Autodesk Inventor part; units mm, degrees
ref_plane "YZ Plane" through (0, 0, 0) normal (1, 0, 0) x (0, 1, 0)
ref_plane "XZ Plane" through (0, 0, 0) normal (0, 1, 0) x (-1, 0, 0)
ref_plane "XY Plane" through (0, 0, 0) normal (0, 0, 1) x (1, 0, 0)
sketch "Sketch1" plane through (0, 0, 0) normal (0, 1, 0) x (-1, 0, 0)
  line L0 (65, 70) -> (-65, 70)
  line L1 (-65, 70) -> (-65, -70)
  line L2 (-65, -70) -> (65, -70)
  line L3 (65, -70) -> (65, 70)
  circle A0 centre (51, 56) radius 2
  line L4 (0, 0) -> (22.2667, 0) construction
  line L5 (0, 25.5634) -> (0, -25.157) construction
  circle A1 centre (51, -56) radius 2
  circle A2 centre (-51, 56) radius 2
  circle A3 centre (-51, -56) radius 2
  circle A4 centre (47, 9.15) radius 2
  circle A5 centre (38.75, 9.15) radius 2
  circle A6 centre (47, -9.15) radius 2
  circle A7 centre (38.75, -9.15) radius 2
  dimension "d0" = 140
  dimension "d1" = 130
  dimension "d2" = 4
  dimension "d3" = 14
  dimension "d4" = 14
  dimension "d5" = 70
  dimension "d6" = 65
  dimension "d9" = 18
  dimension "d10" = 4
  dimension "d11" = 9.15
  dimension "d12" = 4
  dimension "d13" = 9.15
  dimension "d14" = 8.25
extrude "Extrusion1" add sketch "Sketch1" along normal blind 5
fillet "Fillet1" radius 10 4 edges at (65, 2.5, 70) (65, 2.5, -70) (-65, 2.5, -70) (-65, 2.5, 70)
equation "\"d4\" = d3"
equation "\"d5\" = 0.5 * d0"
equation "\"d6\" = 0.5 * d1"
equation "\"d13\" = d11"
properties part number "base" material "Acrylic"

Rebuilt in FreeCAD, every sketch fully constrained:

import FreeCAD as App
import Part
import Sketcher
from FreeCAD import Vector
Q = App.Units.Quantity


def edges_at(feature, points):
    """Names of the edges that pass closest to the given points."""
    edges = feature.Shape.Edges
    near = lambda p: min(range(len(edges)), key=lambda i: edges[i].distToShape(Part.Vertex(*p))[0])
    return sorted({f"Edge{near(p) + 1}" for p in points})


def add_polygon(sketch, points):
    """Adds a closed chain of lines whose ends are joined by coincident constraints."""
    first, n = sketch.GeometryCount, len(points)
    for a, b in zip(points, points[1:] + points[:1]):
        sketch.addGeometry(Part.LineSegment(App.Vector(*a, 0), App.Vector(*b, 0)), False)
    for i in range(n):
        sketch.addConstraint(Sketcher.Constraint("Coincident", first + i, 2, first + (i + 1) % n, 1))

doc = App.newDocument("Part")
params = doc.addObject("Spreadsheet::Sheet", "Params")
for row, (alias, value) in enumerate([
    ("sketch1_diameter", "4 mm"),
    ("sketch1_width", "130 mm"),
    ("sketch1_height", "140 mm"),
    ("pad1_length", "5 mm"),
    ("fillet_radius", "10 mm"),
], start=1):
    params.set(f"A{row}", alias)
    params.set(f"B{row}", "=" + value)
    params.setAlias(f"B{row}", alias)

body = doc.addObject("PartDesign::Body", "Body")

sketch1 = body.newObject("Sketcher::SketchObject", "Sketch")
sketch1.AttachmentSupport = (doc.getObject("XZ_Plane"), [""])
sketch1.MapMode = "FlatFace"
add_polygon(sketch1, [(-65, -70), (-65, 70), (65, 70), (65, -70)])
sketch1.addGeometry(Part.Circle(Vector(51, -56, 0), Vector(0, 0, 1), 2), False)
sketch1.addGeometry(Part.Circle(Vector(-51, -56, 0), Vector(0, 0, 1), 2), False)
sketch1.addGeometry(Part.Circle(Vector(-38.8, -9.2, 0), Vector(0, 0, 1), 2), False)
sketch1.addGeometry(Part.Circle(Vector(-47, -9.2, 0), Vector(0, 0, 1), 2), False)
sketch1.addGeometry(Part.Circle(Vector(51, 56, 0), Vector(0, 0, 1), 2), False)
sketch1.addGeometry(Part.Circle(Vector(-38.8, 9.2, 0), Vector(0, 0, 1), 2), False)
sketch1.addGeometry(Part.Circle(Vector(-47, 9.2, 0), Vector(0, 0, 1), 2), False)
sketch1.addGeometry(Part.Circle(Vector(-51, 56, 0), Vector(0, 0, 1), 2), False)
sketch1.addConstraint([
    Sketcher.Constraint("Vertical", 0),
    Sketcher.Constraint("Horizontal", 1),
    Sketcher.Constraint("Vertical", 2),
    Sketcher.Constraint("Horizontal", 3),
    Sketcher.Constraint("Equal", 4, 5),
    Sketcher.Constraint("Equal", 5, 6),
    Sketcher.Constraint("Equal", 6, 7),
    Sketcher.Constraint("Equal", 7, 8),
    Sketcher.Constraint("Equal", 8, 9),
    Sketcher.Constraint("Equal", 9, 10),
    Sketcher.Constraint("Equal", 10, 11),
    Sketcher.Constraint("Symmetric", 5, 3, 8, 3, -1, 1),
    Sketcher.Constraint("Symmetric", 4, 3, 11, 3, -1, 1),
    Sketcher.Constraint("Symmetric", 0, 2, 2, 2, -1, 1),
    Sketcher.Constraint("Symmetric", 4, 3, 5, 3, -2),
    Sketcher.Constraint("Symmetric", 6, 3, 9, 3, -1),
    Sketcher.Constraint("Symmetric", 7, 3, 10, 3, -1),
    Sketcher.Constraint("Horizontal", 6, 3, 7, 3),
    Sketcher.Constraint("Diameter", 4, Q("4 mm")),
    Sketcher.Constraint("DistanceX", 1, 1, 1, 2, Q("130 mm")),
    Sketcher.Constraint("DistanceY", 0, 1, 0, 2, Q("140 mm")),
    Sketcher.Constraint("DistanceX", 5, 3, 7, 3, Q("4 mm")),
    Sketcher.Constraint("DistanceX", 0, 2, 11, 3, Q("14 mm")),
    Sketcher.Constraint("DistanceY", 11, 3, 0, 2, Q("14 mm")),
    Sketcher.Constraint("DistanceY", 6, 3, -1, 1, Q("9.15 mm")),
    Sketcher.Constraint("DistanceX", 7, 3, 6, 3, Q("8.25 mm")),
])
sketch1.setExpression("Constraints[22]", "Params.sketch1_diameter")
sketch1.setExpression("Constraints[23]", "Params.sketch1_width")
sketch1.setExpression("Constraints[24]", "Params.sketch1_height")
pad1 = body.newObject("PartDesign::Pad", "Pad")
pad1.Profile = sketch1
pad1.setExpression("Length", "Params.pad1_length")
pad1.Reversed = True
doc.recompute()

fillet = body.newObject("PartDesign::Fillet", "Fillet")
fillet.Base = (pad1, edges_at(pad1, [
    (65, 2.5, 70),
    (65, 2.5, -70),
    (-65, 2.5, -70),
    (-65, 2.5, 70),
]))
fillet.setExpression("Radius", "Params.fillet_radius")

doc.recompute()
